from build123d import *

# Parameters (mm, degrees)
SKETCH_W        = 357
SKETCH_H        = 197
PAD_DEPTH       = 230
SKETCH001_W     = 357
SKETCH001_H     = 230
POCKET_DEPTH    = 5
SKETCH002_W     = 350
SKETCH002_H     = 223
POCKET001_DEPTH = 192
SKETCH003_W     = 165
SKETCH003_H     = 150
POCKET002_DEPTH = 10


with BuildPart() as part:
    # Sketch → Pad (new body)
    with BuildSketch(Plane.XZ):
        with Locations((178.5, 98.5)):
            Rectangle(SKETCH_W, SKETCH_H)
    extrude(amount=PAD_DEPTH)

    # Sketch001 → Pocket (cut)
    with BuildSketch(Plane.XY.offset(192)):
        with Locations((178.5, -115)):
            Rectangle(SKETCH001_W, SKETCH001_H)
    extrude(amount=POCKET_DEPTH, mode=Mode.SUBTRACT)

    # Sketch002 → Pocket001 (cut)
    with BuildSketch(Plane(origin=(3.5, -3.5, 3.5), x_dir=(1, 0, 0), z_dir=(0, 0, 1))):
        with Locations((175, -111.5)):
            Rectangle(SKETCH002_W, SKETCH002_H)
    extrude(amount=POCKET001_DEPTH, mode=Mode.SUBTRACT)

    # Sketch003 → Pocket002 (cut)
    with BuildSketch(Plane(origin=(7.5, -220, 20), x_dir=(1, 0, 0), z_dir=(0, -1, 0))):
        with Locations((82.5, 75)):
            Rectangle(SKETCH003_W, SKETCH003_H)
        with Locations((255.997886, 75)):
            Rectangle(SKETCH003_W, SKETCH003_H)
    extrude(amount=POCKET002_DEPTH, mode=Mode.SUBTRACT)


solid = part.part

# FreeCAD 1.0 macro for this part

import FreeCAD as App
import Part
import Sketcher

doc = App.newDocument("Part")
body = doc.addObject("PartDesign::Body", "Body")

sketch1 = doc.addObject("Sketcher::SketchObject", "Sketch")
body.addObject(sketch1)
sketch1.AttachmentSupport = (doc.XZ_Plane, [""])
sketch1.MapMode = "FlatFace"
sketch1.addGeometry([
    Part.LineSegment(App.Vector(0, 197, 0), App.Vector(0, 0, 0)),
    Part.LineSegment(App.Vector(0, 0, 0), App.Vector(357, 0, 0)),
    Part.LineSegment(App.Vector(357, 0, 0), App.Vector(357, 197, 0)),
    Part.LineSegment(App.Vector(357, 197, 0), App.Vector(0, 197, 0)),
], False)
sketch1.addConstraint([
    Sketcher.Constraint("Coincident", 0, 2, 1, 1),
    Sketcher.Constraint("Coincident", 1, 2, 2, 1),
    Sketcher.Constraint("Coincident", 2, 2, 3, 1),
    Sketcher.Constraint("Coincident", 3, 2, 0, 1),
    Sketcher.Constraint("Vertical", 0),
    Sketcher.Constraint("Horizontal", 1),
    Sketcher.Constraint("Vertical", 2),
    Sketcher.Constraint("Horizontal", 3),
    Sketcher.Constraint("Coincident", 0, 2, -1, 1),
    Sketcher.Constraint("DistanceX", 1, 1, 1, 2, 357.0),
    Sketcher.Constraint("DistanceY", 0, 2, 0, 1, 197.0),
])
pad1 = doc.addObject("PartDesign::Pad", "Pad")
body.addObject(pad1)
pad1.Profile = sketch1
pad1.Length = 230

sketch2 = doc.addObject("Sketcher::SketchObject", "Sketch001")
body.addObject(sketch2)
sketch2.AttachmentSupport = (doc.XY_Plane, [""])
sketch2.MapMode = "FlatFace"
sketch2.AttachmentOffset = App.Placement(App.Vector(0, 0, 192), App.Rotation())
sketch2.addGeometry([
    Part.LineSegment(App.Vector(0, 0, 0), App.Vector(0, -230, 0)),
    Part.LineSegment(App.Vector(0, -230, 0), App.Vector(357, -230, 0)),
    Part.LineSegment(App.Vector(357, -230, 0), App.Vector(357, 0, 0)),
    Part.LineSegment(App.Vector(357, 0, 0), App.Vector(0, 0, 0)),
], False)
sketch2.addConstraint([
    Sketcher.Constraint("Coincident", 0, 2, 1, 1),
    Sketcher.Constraint("Coincident", 1, 2, 2, 1),
    Sketcher.Constraint("Coincident", 2, 2, 3, 1),
    Sketcher.Constraint("Coincident", 3, 2, 0, 1),
    Sketcher.Constraint("Vertical", 0),
    Sketcher.Constraint("Horizontal", 1),
    Sketcher.Constraint("Vertical", 2),
    Sketcher.Constraint("Horizontal", 3),
    Sketcher.Constraint("Coincident", 3, 2, -1, 1),
    Sketcher.Constraint("DistanceX", 1, 1, 1, 2, 357.0),
    Sketcher.Constraint("DistanceY", 0, 2, 0, 1, 230.0),
])
pocket1 = doc.addObject("PartDesign::Pocket", "Pocket")
body.addObject(pocket1)
pocket1.Profile = sketch2
pocket1.Length = 5
pocket1.Reversed = True

sketch3 = doc.addObject("Sketcher::SketchObject", "Sketch002")
body.addObject(sketch3)
sketch3.AttachmentSupport = (doc.XY_Plane, [""])
sketch3.MapMode = "FlatFace"
sketch3.AttachmentOffset = App.Placement(App.Vector(0, 0, 3.5), App.Rotation())
sketch3.addGeometry([
    Part.LineSegment(App.Vector(3.5, -3.5, 0), App.Vector(3.5, -226.5, 0)),
    Part.LineSegment(App.Vector(3.5, -226.5, 0), App.Vector(353.5, -226.5, 0)),
    Part.LineSegment(App.Vector(353.5, -226.5, 0), App.Vector(353.5, -3.5, 0)),
    Part.LineSegment(App.Vector(353.5, -3.5, 0), App.Vector(3.5, -3.5, 0)),
], False)
sketch3.addConstraint([
    Sketcher.Constraint("Coincident", 0, 2, 1, 1),
    Sketcher.Constraint("Coincident", 1, 2, 2, 1),
    Sketcher.Constraint("Coincident", 2, 2, 3, 1),
    Sketcher.Constraint("Coincident", 3, 2, 0, 1),
    Sketcher.Constraint("Vertical", 0),
    Sketcher.Constraint("Horizontal", 1),
    Sketcher.Constraint("Vertical", 2),
    Sketcher.Constraint("Horizontal", 3),
    Sketcher.Constraint("DistanceX", 1, 1, 1, 2, 350.0),
    Sketcher.Constraint("DistanceY", 0, 2, 0, 1, 223.0),
    Sketcher.Constraint("DistanceX", -1, 1, 0, 2, 3.5),
    Sketcher.Constraint("DistanceY", 0, 2, -1, 1, 226.5),
])
pocket2 = doc.addObject("PartDesign::Pocket", "Pocket001")
body.addObject(pocket2)
pocket2.Profile = sketch3
pocket2.Length = 192
pocket2.Reversed = True

sketch4 = doc.addObject("Sketcher::SketchObject", "Sketch003")
body.addObject(sketch4)
sketch4.AttachmentSupport = (doc.XZ_Plane, [""])
sketch4.MapMode = "FlatFace"
sketch4.AttachmentOffset = App.Placement(App.Vector(0, 0, 220), App.Rotation())
sketch4.addGeometry([
    Part.LineSegment(App.Vector(7.5, 170, 0), App.Vector(7.5, 20, 0)),
    Part.LineSegment(App.Vector(7.5, 20, 0), App.Vector(172.5, 20, 0)),
    Part.LineSegment(App.Vector(172.5, 20, 0), App.Vector(172.5, 170, 0)),
    Part.LineSegment(App.Vector(172.5, 170, 0), App.Vector(7.5, 170, 0)),
    Part.LineSegment(App.Vector(180.997886, 170, 0), App.Vector(180.997886, 20, 0)),
    Part.LineSegment(App.Vector(180.997886, 20, 0), App.Vector(345.997886, 20, 0)),
    Part.LineSegment(App.Vector(345.997886, 20, 0), App.Vector(345.997886, 170, 0)),
    Part.LineSegment(App.Vector(345.997886, 170, 0), App.Vector(180.997886, 170, 0)),
], False)
sketch4.addConstraint([
    Sketcher.Constraint("Coincident", 0, 2, 1, 1),
    Sketcher.Constraint("Coincident", 1, 2, 2, 1),
    Sketcher.Constraint("Coincident", 2, 2, 3, 1),
    Sketcher.Constraint("Coincident", 3, 2, 0, 1),
    Sketcher.Constraint("Coincident", 4, 2, 5, 1),
    Sketcher.Constraint("Coincident", 5, 2, 6, 1),
    Sketcher.Constraint("Coincident", 6, 2, 7, 1),
    Sketcher.Constraint("Coincident", 7, 2, 4, 1),
    Sketcher.Constraint("Vertical", 0),
    Sketcher.Constraint("Horizontal", 1),
    Sketcher.Constraint("Vertical", 2),
    Sketcher.Constraint("Horizontal", 3),
    Sketcher.Constraint("Vertical", 4),
    Sketcher.Constraint("Horizontal", 5),
    Sketcher.Constraint("Vertical", 6),
    Sketcher.Constraint("Horizontal", 7),
    Sketcher.Constraint("Horizontal", 1, 2, 4, 2),
    Sketcher.Constraint("Horizontal", 3, 2, 6, 2),
    Sketcher.Constraint("Equal", 3, 5),
    Sketcher.Constraint("DistanceX", 1, 1, 1, 2, 165.0),
    Sketcher.Constraint("DistanceY", 0, 2, 0, 1, 150.0),
    Sketcher.Constraint("DistanceY", -1, 1, 0, 2, 20.0),
    Sketcher.Constraint("DistanceX", -1, 1, 0, 2, 7.5),
    Sketcher.Constraint("DistanceX", -1, 1, 4, 2, 180.997886),
])
pocket3 = doc.addObject("PartDesign::Pocket", "Pocket002")
body.addObject(pocket3)
pocket3.Profile = sketch4
pocket3.Length = 10
pocket3.Reversed = True

doc.recompute()
